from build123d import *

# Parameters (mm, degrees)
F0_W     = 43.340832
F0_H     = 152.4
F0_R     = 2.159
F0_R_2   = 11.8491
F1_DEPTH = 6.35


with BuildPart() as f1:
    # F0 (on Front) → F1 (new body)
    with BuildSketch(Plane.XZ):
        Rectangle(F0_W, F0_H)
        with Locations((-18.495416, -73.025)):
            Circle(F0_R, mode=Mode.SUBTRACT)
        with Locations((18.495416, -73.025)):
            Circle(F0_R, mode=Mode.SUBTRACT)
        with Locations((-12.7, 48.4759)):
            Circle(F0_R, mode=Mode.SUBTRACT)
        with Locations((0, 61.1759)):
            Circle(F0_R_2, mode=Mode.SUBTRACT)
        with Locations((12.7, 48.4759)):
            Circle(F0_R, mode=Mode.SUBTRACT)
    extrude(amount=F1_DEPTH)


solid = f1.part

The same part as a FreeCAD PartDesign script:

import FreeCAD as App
import Part
import Sketcher

V = App.Vector
Q = App.Units.Quantity

doc = App.newDocument("Part")
params = doc.addObject("Spreadsheet::Sheet", "Params")
for row, (alias, value) in enumerate([
    ("sketch1_diameter", "0.17 in"),
    ("sketch1_height", "6 in"),
    ("sketch1_diameter2", "0.933 in"),
    ("pad1_length", "0.25 in"),
], start=1):
    params.set(f"A{row}", alias)
    params.set(f"B{row}", "=" + value)
    params.setAlias(f"B{row}", alias)

body = doc.addObject("PartDesign::Body", "Body")

sketch1 = doc.addObject("Sketcher::SketchObject", "Sketch")
body.addObject(sketch1)
sketch1.AttachmentSupport = (doc.XZ_Plane, [""])
sketch1.MapMode = "FlatFace"
sketch1.addGeometry([
    Part.LineSegment(V(-21.7, 76.2, 0), V(-21.7, -76.2, 0)),
    Part.LineSegment(V(-21.7, -76.2, 0), V(21.7, -76.2, 0)),
    Part.LineSegment(V(21.7, -76.2, 0), V(21.7, 76.2, 0)),
    Part.LineSegment(V(21.7, 76.2, 0), V(-21.7, 76.2, 0)),
    Part.Circle(V(-18.5, -73, 0), V(0, 0, 1), 2.2),
    Part.Circle(V(18.5, -73, 0), V(0, 0, 1), 2.2),
    Part.Circle(V(-12.7, 48.5, 0), V(0, 0, 1), 2.2),
    Part.Circle(V(0, 61.2, 0), V(0, 0, 1), 11.8),
    Part.Circle(V(12.7, 48.5, 0), V(0, 0, 1), 2.2),
], False)
sketch1.addConstraint([
    Sketcher.Constraint("Coincident", 0, 2, 1, 1),
    Sketcher.Constraint("Coincident", 1, 2, 2, 1),
    Sketcher.Constraint("Coincident", 2, 2, 3, 1),
    Sketcher.Constraint("Coincident", 3, 2, 0, 1),
    Sketcher.Constraint("Vertical", 0),
    Sketcher.Constraint("Horizontal", 1),
    Sketcher.Constraint("Vertical", 2),
    Sketcher.Constraint("Horizontal", 3),
    Sketcher.Constraint("Equal", 4, 5),
    Sketcher.Constraint("Equal", 5, 6),
    Sketcher.Constraint("Equal", 6, 8),
    Sketcher.Constraint("Symmetric", 0, 2, 2, 2, -1, 1),
    Sketcher.Constraint("Symmetric", 4, 3, 5, 3, -2),
    Sketcher.Constraint("Symmetric", 6, 3, 8, 3, -2),
    Sketcher.Constraint("PointOnObject", 7, 3, -2),
    Sketcher.Constraint("Diameter", 4, Q("0.17 in")),
    Sketcher.Constraint("DistanceY", 0, 2, 0, 1, Q("6 in")),
    Sketcher.Constraint("Diameter", 7, Q("0.933 in")),
    Sketcher.Constraint("DistanceX", 6, 3, 8, 3, Q("1 in")),
    Sketcher.Constraint("DistanceY", 6, 3, 7, 3, Q("0.5 in")),
    Sketcher.Constraint("DistanceY", 4, 3, -1, 1, Q("2.875 in")),
    Sketcher.Constraint("DistanceX", 0, 2, 4, 3, Q("0.125 in")),
    Sketcher.Constraint("DistanceY", -1, 1, 6, 3, Q("1.9085 in")),
    Sketcher.Constraint("DistanceX", 1, 1, 1, 2, 43.340832),
])
sketch1.setExpression("Constraints[15]", "Params.sketch1_diameter")
sketch1.setExpression("Constraints[16]", "Params.sketch1_height")
sketch1.setExpression("Constraints[17]", "Params.sketch1_diameter2")
pad1 = doc.addObject("PartDesign::Pad", "Pad")
body.addObject(pad1)
pad1.Profile = sketch1
pad1.setExpression("Length", "Params.pad1_length")

doc.recompute()
